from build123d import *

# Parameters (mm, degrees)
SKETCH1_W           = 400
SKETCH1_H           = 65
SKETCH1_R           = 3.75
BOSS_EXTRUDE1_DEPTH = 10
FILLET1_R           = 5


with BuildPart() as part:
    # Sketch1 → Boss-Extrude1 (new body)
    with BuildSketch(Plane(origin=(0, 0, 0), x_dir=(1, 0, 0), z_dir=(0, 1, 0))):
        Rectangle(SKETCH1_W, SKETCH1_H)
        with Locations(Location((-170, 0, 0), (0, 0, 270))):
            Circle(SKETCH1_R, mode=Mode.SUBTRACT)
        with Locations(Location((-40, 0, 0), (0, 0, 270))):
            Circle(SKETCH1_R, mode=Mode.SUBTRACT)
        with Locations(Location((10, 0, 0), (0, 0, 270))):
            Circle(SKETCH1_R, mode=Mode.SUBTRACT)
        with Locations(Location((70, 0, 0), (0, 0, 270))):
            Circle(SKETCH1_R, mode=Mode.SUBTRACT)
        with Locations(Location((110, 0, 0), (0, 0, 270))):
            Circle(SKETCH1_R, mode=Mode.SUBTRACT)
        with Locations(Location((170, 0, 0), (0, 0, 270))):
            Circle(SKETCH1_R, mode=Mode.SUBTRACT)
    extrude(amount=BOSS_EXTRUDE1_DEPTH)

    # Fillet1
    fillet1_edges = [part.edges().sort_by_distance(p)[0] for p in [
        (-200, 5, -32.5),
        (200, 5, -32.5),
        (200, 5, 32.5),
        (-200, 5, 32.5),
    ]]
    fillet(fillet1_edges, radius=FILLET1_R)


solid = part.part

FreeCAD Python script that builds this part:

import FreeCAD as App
import Part
import Sketcher

V = App.Vector


def edges_at(feature, points):
    """Names of the edges that pass closest to the given points."""
    edges = feature.Shape.Edges
    near = lambda p: min(range(len(edges)), key=lambda i: edges[i].distToShape(Part.Vertex(*p))[0])
    return sorted({f"Edge{near(p) + 1}" for p in points})


def add_polygon(sketch, points):
    """Adds a closed chain of lines whose ends are joined by coincident constraints."""
    first, n = sketch.GeometryCount, len(points)
    for a, b in zip(points, points[1:] + points[:1]):
        sketch.addGeometry(Part.LineSegment(App.Vector(*a, 0), App.Vector(*b, 0)), False)
    for i in range(n):
        sketch.addConstraint(Sketcher.Constraint("Coincident", first + i, 2, first + (i + 1) % n, 1))

doc = App.newDocument("Part")
body = doc.addObject("PartDesign::Body", "Body")

sketch1 = doc.addObject("Sketcher::SketchObject", "Sketch")
body.addObject(sketch1)
sketch1.AttachmentSupport = (doc.XZ_Plane, [""])
sketch1.MapMode = "FlatFace"
add_polygon(sketch1, [(-200, -32.5), (-200, 32.5), (200, 32.5), (200, -32.5)])
sketch1.addGeometry(Part.Circle(V(-170, 0, 0), V(0, 0, 1), 3.8), False)
sketch1.addGeometry(Part.Circle(V(-40, 0, 0), V(0, 0, 1), 3.8), False)
sketch1.addGeometry(Part.Circle(V(10, 0, 0), V(0, 0, 1), 3.8), False)
sketch1.addGeometry(Part.Circle(V(70, 0, 0), V(0, 0, 1), 3.8), False)
sketch1.addGeometry(Part.Circle(V(110, 0, 0), V(0, 0, 1), 3.8), False)
sketch1.addGeometry(Part.Circle(V(170, 0, 0), V(0, 0, 1), 3.8), False)
sketch1.addConstraint([
    Sketcher.Constraint("Vertical", 0),
    Sketcher.Constraint("Horizontal", 1),
    Sketcher.Constraint("Vertical", 2),
    Sketcher.Constraint("Horizontal", 3),
    Sketcher.Constraint("Equal", 4, 5),
    Sketcher.Constraint("Equal", 5, 6),
    Sketcher.Constraint("Equal", 6, 7),
    Sketcher.Constraint("Equal", 7, 8),
    Sketcher.Constraint("Equal", 8, 9),
    Sketcher.Constraint("Symmetric", 4, 3, 9, 3, -1, 1),
    Sketcher.Constraint("Symmetric", 0, 2, 2, 2, -1, 1),
    Sketcher.Constraint("PointOnObject", 4, 3, -1),
    Sketcher.Constraint("PointOnObject", 5, 3, -1),
    Sketcher.Constraint("PointOnObject", 6, 3, -1),
    Sketcher.Constraint("PointOnObject", 7, 3, -1),
    Sketcher.Constraint("PointOnObject", 8, 3, -1),
    Sketcher.Constraint("Diameter", 4, 7.5),
    Sketcher.Constraint("DistanceX", 1, 1, 1, 2, 400.0),
    Sketcher.Constraint("DistanceY", 0, 1, 0, 2, 65.0),
    Sketcher.Constraint("DistanceX", 4, 3, -1, 1, 170.0),
    Sketcher.Constraint("DistanceX", 5, 3, -1, 1, 40.0),
    Sketcher.Constraint("DistanceX", -1, 1, 6, 3, 10.0),
    Sketcher.Constraint("DistanceX", -1, 1, 7, 3, 70.0),
    Sketcher.Constraint("DistanceX", -1, 1, 8, 3, 110.0),
])
pad1 = doc.addObject("PartDesign::Pad", "Pad")
body.addObject(pad1)
pad1.Profile = sketch1
pad1.Length = 10
pad1.Reversed = True
doc.recompute()

fillet = doc.addObject("PartDesign::Fillet", "Fillet")
body.addObject(fillet)
fillet.Base = (pad1, edges_at(pad1, [
    (-200, 5, -32.5),
    (200, 5, -32.5),
    (200, 5, 32.5),
    (-200, 5, 32.5),
]))
fillet.Radius = 5

doc.recompute()
